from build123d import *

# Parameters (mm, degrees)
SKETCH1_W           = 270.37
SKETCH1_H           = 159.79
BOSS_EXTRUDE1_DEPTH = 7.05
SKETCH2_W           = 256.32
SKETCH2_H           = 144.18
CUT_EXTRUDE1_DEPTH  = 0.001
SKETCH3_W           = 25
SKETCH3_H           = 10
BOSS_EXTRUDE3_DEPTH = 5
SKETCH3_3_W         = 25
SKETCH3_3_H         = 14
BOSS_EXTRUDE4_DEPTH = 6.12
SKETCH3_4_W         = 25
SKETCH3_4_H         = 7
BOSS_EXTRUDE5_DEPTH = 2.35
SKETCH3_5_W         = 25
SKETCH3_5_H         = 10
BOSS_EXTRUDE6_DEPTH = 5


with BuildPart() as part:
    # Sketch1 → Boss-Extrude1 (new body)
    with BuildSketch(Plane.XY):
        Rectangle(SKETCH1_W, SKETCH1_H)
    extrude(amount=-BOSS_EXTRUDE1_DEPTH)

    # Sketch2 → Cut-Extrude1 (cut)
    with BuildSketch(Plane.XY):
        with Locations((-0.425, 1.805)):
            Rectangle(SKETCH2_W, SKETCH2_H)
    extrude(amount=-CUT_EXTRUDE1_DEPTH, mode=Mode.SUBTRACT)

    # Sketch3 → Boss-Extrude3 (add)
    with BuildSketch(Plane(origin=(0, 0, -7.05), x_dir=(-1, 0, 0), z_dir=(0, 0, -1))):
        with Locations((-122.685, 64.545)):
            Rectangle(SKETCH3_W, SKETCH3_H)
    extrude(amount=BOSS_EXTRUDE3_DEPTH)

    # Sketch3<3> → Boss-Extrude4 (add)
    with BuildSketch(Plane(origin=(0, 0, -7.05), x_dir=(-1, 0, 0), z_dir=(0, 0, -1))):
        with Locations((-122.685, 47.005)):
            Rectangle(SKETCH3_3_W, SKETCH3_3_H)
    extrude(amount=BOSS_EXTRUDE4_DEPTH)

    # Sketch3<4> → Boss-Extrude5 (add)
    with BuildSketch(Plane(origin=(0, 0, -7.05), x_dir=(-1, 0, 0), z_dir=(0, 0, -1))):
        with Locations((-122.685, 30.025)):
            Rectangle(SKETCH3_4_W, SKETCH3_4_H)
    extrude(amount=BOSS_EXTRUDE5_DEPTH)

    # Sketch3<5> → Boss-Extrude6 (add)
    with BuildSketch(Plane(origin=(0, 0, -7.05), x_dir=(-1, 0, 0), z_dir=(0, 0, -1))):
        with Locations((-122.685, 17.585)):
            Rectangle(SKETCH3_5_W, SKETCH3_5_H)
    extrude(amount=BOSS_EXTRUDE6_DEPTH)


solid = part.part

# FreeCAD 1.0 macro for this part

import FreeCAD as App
import Part
import Sketcher
Q = App.Units.Quantity


def add_polygon(sketch, points):
    """Adds a closed chain of lines whose ends are joined by coincident constraints."""
    first, n = sketch.GeometryCount, len(points)
    for a, b in zip(points, points[1:] + points[:1]):
        sketch.addGeometry(Part.LineSegment(App.Vector(*a, 0), App.Vector(*b, 0)), False)
    for i in range(n):
        sketch.addConstraint(Sketcher.Constraint("Coincident", first + i, 2, first + (i + 1) % n, 1))

doc = App.newDocument("Part")
body = doc.addObject("PartDesign::Body", "Body")

# Sketch on XY plane
sketch1 = body.newObject("Sketcher::SketchObject", "Sketch")
sketch1.AttachmentSupport = (doc.getObject("XY_Plane"), [""])
sketch1.MapMode = "FlatFace"
add_polygon(sketch1, [(-135, 80), (-135, -80), (135, -80), (135, 80)])  # lines 0-3
sketch1.addConstraint(Sketcher.Constraint("Vertical", 0))
sketch1.addConstraint(Sketcher.Constraint("Horizontal", 1))
sketch1.addConstraint(Sketcher.Constraint("Vertical", 2))
sketch1.addConstraint(Sketcher.Constraint("Horizontal", 3))
sketch1.addConstraint(Sketcher.Constraint("Symmetric", 0, 2, 2, 2, -1, 1))
sketch1.addConstraint(Sketcher.Constraint("DistanceX", 1, 1, 1, 2, Q("270.37 mm")))
sketch1.addConstraint(Sketcher.Constraint("DistanceY", 0, 2, 0, 1, Q("159.79 mm")))
pad1 = body.newObject("PartDesign::Pad", "Pad")
pad1.Profile = sketch1
pad1.Length = 7.05
pad1.Reversed = True

# Sketch on XY plane
sketch2 = body.newObject("Sketcher::SketchObject", "Sketch001")
sketch2.AttachmentSupport = (doc.getObject("XY_Plane"), [""])
sketch2.MapMode = "FlatFace"
add_polygon(sketch2, [(-129, 74), (-129, -70), (128, -70), (128, 74)])  # lines 0-3
sketch2.addConstraint(Sketcher.Constraint("Vertical", 0))
sketch2.addConstraint(Sketcher.Constraint("Horizontal", 1))
sketch2.addConstraint(Sketcher.Constraint("Vertical", 2))
sketch2.addConstraint(Sketcher.Constraint("Horizontal", 3))
sketch2.addConstraint(Sketcher.Constraint("DistanceX", 1, 1, 1, 2, Q("256.32 mm")))
sketch2.addConstraint(Sketcher.Constraint("DistanceY", 0, 2, 0, 1, Q("144.18 mm")))
sketch2.addConstraint(Sketcher.Constraint("DistanceX", 0, 2, -1, 1, Q("128.585 mm")))
sketch2.addConstraint(Sketcher.Constraint("DistanceY", 0, 2, -1, 1, Q("70.285 mm")))
pocket1 = body.newObject("PartDesign::Pocket", "Pocket")
pocket1.Profile = sketch2
pocket1.Length = 0.001

# Sketch on XY plane
sketch3 = body.newObject("Sketcher::SketchObject", "Sketch002")
sketch3.AttachmentSupport = (doc.getObject("XY_Plane"), [""])
sketch3.MapMode = "FlatFace"
sketch3.AttachmentOffset = App.Placement(App.Vector(0, 0, -7.05), App.Rotation())
add_polygon(sketch3, [(135, 70), (135, 60), (110, 60), (110, 70)])  # lines 0-3
sketch3.addConstraint(Sketcher.Constraint("Vertical", 0))
sketch3.addConstraint(Sketcher.Constraint("Horizontal", 1))
sketch3.addConstraint(Sketcher.Constraint("Vertical", 2))
sketch3.addConstraint(Sketcher.Constraint("Horizontal", 3))
sketch3.addConstraint(Sketcher.Constraint("DistanceX", 1, 2, 1, 1, Q("25 mm")))
sketch3.addConstraint(Sketcher.Constraint("DistanceY", 0, 2, 0, 1, Q("10 mm")))
sketch3.addConstraint(Sketcher.Constraint("DistanceX", -1, 1, 0, 2, Q("135.185 mm")))
sketch3.addConstraint(Sketcher.Constraint("DistanceY", -1, 1, 0, 2, Q("59.545 mm")))
pad2 = body.newObject("PartDesign::Pad", "Pad001")
pad2.Profile = sketch3
pad2.Length = 5
pad2.Reversed = True

# Sketch on XY plane
sketch4 = body.newObject("Sketcher::SketchObject", "Sketch003")
sketch4.AttachmentSupport = (doc.getObject("XY_Plane"), [""])
sketch4.MapMode = "FlatFace"
sketch4.AttachmentOffset = App.Placement(App.Vector(0, 0, -7.05), App.Rotation())
add_polygon(sketch4, [(135, 54), (135, 40), (110, 40), (110, 54)])  # lines 0-3
sketch4.addConstraint(Sketcher.Constraint("Vertical", 0))
sketch4.addConstraint(Sketcher.Constraint("Horizontal", 1))
sketch4.addConstraint(Sketcher.Constraint("Vertical", 2))
sketch4.addConstraint(Sketcher.Constraint("Horizontal", 3))
sketch4.addConstraint(Sketcher.Constraint("DistanceX", 1, 2, 1, 1, Q("25 mm")))
sketch4.addConstraint(Sketcher.Constraint("DistanceY", 0, 2, 0, 1, Q("14 mm")))
sketch4.addConstraint(Sketcher.Constraint("DistanceX", -1, 1, 0, 2, Q("135.185 mm")))
sketch4.addConstraint(Sketcher.Constraint("DistanceY", -1, 1, 0, 2, Q("40.005 mm")))
pad3 = body.newObject("PartDesign::Pad", "Pad002")
pad3.Profile = sketch4
pad3.Length = 6.12
pad3.Reversed = True

# Sketch on XY plane
sketch5 = body.newObject("Sketcher::SketchObject", "Sketch004")
sketch5.AttachmentSupport = (doc.getObject("XY_Plane"), [""])
sketch5.MapMode = "FlatFace"
sketch5.AttachmentOffset = App.Placement(App.Vector(0, 0, -7.05), App.Rotation())
add_polygon(sketch5, [(135, 34), (135, 27), (110, 27), (110, 34)])  # lines 0-3
sketch5.addConstraint(Sketcher.Constraint("Vertical", 0))
sketch5.addConstraint(Sketcher.Constraint("Horizontal", 1))
sketch5.addConstraint(Sketcher.Constraint("Vertical", 2))
sketch5.addConstraint(Sketcher.Constraint("Horizontal", 3))
sketch5.addConstraint(Sketcher.Constraint("DistanceX", 1, 2, 1, 1, Q("25 mm")))
sketch5.addConstraint(Sketcher.Constraint("DistanceY", 0, 2, 0, 1, Q("7 mm")))
sketch5.addConstraint(Sketcher.Constraint("DistanceX", -1, 1, 0, 2, Q("135.185 mm")))
sketch5.addConstraint(Sketcher.Constraint("DistanceY", -1, 1, 0, 2, Q("26.525 mm")))
pad4 = body.newObject("PartDesign::Pad", "Pad003")
pad4.Profile = sketch5
pad4.Length = 2.35
pad4.Reversed = True

# Sketch on XY plane
sketch6 = body.newObject("Sketcher::SketchObject", "Sketch005")
sketch6.AttachmentSupport = (doc.getObject("XY_Plane"), [""])
sketch6.MapMode = "FlatFace"
sketch6.AttachmentOffset = App.Placement(App.Vector(0, 0, -7.05), App.Rotation())
add_polygon(sketch6, [(135, 23), (135, 13), (110, 13), (110, 23)])  # lines 0-3
sketch6.addConstraint(Sketcher.Constraint("Vertical", 0))
sketch6.addConstraint(Sketcher.Constraint("Horizontal", 1))
sketch6.addConstraint(Sketcher.Constraint("Vertical", 2))
sketch6.addConstraint(Sketcher.Constraint("Horizontal", 3))
sketch6.addConstraint(Sketcher.Constraint("DistanceX", 1, 2, 1, 1, Q("25 mm")))
sketch6.addConstraint(Sketcher.Constraint("DistanceY", 0, 2, 0, 1, Q("10 mm")))
sketch6.addConstraint(Sketcher.Constraint("DistanceX", -1, 1, 0, 2, Q("135.185 mm")))
sketch6.addConstraint(Sketcher.Constraint("DistanceY", -1, 1, 0, 2, Q("12.585 mm")))
pad5 = body.newObject("PartDesign::Pad", "Pad004")
pad5.Profile = sketch6
pad5.Length = 5
pad5.Reversed = True

doc.recompute()
